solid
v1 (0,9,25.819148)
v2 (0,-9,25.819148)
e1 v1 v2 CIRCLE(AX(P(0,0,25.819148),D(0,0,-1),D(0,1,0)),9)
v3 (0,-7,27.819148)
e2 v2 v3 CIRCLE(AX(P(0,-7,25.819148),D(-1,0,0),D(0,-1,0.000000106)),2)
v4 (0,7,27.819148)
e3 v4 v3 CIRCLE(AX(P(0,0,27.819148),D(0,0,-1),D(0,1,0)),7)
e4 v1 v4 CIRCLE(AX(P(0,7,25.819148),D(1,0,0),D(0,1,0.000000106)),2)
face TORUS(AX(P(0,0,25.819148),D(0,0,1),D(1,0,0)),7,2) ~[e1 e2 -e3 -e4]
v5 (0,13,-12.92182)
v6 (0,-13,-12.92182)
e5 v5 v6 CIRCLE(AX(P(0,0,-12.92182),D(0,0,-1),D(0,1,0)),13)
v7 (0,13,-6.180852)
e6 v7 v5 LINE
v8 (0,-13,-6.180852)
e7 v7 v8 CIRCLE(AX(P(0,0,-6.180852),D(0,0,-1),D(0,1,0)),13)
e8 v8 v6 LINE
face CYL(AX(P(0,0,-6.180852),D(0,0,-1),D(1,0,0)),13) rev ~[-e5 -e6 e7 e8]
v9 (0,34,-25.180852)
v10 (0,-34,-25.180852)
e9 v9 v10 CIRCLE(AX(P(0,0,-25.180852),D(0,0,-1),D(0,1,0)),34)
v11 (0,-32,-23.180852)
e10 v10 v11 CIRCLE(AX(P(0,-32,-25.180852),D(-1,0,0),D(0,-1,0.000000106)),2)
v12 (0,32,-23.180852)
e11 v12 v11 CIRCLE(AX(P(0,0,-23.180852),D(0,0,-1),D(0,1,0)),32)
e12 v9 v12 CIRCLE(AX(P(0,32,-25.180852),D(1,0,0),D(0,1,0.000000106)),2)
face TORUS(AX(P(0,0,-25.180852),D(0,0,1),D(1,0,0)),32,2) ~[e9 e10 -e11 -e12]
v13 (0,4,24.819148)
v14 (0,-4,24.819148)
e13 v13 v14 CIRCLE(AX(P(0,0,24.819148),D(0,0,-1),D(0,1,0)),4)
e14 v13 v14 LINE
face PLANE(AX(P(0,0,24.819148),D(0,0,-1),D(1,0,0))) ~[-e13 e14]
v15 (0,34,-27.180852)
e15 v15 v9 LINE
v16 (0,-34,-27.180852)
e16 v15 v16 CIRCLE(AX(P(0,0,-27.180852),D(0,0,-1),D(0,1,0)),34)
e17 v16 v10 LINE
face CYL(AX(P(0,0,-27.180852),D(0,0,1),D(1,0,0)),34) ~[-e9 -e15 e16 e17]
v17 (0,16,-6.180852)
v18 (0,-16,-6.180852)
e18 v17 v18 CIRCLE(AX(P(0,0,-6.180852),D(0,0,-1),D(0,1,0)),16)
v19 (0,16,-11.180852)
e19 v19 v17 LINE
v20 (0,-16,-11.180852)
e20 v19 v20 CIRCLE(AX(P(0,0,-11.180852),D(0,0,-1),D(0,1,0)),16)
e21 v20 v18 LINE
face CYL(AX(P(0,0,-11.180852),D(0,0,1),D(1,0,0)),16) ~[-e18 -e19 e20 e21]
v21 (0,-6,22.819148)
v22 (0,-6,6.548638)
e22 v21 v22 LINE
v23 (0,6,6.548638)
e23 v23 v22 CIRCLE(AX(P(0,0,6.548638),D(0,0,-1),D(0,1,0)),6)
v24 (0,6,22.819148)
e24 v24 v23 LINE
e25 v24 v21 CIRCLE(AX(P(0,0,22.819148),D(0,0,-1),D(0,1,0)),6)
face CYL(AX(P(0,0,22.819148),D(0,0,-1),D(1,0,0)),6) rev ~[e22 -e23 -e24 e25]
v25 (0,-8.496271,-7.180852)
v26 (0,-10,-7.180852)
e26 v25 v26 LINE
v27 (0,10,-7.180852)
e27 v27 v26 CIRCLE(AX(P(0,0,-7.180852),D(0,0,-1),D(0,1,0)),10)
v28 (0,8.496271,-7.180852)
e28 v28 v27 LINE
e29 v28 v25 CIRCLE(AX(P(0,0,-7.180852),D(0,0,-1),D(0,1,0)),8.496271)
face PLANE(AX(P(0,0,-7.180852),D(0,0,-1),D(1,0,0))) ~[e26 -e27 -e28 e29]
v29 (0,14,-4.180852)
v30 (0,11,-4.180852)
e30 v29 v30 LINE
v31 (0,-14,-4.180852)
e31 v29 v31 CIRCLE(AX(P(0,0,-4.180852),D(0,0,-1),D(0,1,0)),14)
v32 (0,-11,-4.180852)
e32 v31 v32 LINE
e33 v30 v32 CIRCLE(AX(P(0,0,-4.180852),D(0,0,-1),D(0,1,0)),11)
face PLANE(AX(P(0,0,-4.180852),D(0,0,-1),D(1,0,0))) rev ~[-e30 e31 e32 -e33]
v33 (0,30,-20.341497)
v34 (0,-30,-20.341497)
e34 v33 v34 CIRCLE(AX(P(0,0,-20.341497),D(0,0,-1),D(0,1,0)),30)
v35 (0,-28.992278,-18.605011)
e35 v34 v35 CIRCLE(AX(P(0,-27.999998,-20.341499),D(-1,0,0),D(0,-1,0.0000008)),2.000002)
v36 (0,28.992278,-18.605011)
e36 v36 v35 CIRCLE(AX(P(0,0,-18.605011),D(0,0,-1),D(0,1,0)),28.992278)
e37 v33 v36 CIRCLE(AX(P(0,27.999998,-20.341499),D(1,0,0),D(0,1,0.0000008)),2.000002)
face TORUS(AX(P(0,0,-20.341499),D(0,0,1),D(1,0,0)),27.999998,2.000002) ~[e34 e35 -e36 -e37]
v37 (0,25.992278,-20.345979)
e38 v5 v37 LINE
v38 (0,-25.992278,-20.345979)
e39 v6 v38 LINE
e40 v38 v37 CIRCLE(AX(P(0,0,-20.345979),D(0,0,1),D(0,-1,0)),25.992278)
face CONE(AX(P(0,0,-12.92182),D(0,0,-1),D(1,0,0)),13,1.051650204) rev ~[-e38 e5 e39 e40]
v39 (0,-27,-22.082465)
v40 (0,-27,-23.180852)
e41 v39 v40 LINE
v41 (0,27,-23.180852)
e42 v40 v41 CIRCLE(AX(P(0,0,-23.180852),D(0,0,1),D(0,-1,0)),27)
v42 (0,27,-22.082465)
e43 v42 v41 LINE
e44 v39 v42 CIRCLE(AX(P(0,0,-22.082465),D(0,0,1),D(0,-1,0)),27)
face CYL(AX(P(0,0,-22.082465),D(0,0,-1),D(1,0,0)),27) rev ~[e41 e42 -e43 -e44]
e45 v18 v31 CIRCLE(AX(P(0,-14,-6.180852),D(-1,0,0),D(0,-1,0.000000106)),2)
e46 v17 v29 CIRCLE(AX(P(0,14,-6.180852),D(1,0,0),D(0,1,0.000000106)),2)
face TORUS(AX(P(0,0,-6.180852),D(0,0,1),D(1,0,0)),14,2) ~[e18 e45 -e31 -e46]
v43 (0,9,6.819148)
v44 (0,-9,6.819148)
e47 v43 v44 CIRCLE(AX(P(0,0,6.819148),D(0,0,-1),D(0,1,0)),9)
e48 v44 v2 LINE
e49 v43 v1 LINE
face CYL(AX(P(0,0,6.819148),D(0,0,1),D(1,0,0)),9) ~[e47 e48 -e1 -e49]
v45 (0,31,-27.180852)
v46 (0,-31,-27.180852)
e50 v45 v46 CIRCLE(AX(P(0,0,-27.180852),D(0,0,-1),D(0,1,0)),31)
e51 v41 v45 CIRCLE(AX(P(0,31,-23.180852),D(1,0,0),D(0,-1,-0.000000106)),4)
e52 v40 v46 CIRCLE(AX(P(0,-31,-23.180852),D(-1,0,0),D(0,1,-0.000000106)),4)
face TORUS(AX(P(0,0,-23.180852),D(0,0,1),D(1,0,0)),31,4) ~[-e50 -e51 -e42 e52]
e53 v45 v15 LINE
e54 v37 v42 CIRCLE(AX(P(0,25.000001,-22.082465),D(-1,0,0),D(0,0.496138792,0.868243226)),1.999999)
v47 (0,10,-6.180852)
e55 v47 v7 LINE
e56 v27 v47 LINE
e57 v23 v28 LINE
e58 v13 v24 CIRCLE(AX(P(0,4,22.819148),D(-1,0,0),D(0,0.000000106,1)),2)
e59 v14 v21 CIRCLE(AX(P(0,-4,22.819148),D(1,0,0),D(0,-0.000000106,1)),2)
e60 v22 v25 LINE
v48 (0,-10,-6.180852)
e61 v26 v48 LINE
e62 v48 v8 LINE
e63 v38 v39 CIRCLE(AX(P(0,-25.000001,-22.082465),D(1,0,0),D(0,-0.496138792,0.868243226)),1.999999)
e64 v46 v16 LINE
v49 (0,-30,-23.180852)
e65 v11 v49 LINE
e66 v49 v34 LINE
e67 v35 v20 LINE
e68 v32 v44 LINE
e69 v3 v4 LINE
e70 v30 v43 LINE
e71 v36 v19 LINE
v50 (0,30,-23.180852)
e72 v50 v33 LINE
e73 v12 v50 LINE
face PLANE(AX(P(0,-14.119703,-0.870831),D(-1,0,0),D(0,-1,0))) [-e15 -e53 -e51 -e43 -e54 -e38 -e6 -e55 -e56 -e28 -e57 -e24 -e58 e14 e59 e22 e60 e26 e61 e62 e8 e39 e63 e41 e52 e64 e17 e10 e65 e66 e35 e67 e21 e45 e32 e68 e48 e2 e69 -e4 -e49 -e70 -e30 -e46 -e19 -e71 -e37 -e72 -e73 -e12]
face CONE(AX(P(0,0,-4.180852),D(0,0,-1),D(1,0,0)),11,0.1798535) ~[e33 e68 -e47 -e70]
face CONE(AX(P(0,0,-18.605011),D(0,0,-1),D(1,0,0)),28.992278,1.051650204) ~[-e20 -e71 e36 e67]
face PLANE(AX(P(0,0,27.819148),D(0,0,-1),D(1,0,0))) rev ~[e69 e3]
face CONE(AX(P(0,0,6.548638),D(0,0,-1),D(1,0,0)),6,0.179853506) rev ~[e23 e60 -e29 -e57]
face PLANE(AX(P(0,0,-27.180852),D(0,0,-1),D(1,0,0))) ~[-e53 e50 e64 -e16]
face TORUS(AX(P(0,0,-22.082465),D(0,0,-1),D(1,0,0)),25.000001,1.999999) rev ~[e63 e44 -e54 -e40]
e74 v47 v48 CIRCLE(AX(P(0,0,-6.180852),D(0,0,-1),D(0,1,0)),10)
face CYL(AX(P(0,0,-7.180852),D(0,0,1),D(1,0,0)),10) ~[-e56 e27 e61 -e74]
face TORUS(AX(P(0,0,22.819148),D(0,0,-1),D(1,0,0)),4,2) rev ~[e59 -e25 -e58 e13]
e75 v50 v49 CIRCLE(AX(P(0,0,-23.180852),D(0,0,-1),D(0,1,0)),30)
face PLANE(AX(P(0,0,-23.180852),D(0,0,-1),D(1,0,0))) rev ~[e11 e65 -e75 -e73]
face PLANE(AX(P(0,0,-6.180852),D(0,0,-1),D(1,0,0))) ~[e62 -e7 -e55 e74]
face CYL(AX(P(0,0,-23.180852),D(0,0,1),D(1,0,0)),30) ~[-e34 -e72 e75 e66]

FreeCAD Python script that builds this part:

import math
import FreeCAD as App
import Part
import Sketcher

doc = App.newDocument("Part")
body = doc.addObject("PartDesign::Body", "Body")

sketch1 = body.newObject("Sketcher::SketchObject", "Sketch")
sketch1.AttachmentSupport = (doc.getObject("XZ_Plane"), [""])
sketch1.MapMode = "FlatFace"
sketch1.addGeometry(Part.ArcOfCircle(Part.Circle(App.Vector(31, -23.2, 0), App.Vector(0, 0, 1), 4), math.radians(-180), math.radians(-90)), False)
sketch1.addGeometry(Part.LineSegment(App.Vector(31, -27.2, 0), App.Vector(34, -27.2, 0)), False)
sketch1.addGeometry(Part.LineSegment(App.Vector(34, -27.2, 0), App.Vector(34, -25.2, 0)), False)
sketch1.addGeometry(Part.ArcOfCircle(Part.Circle(App.Vector(32, -25.2, 0), App.Vector(0, 0, 1), 2), math.radians(0), math.radians(90)), False)
sketch1.addGeometry(Part.LineSegment(App.Vector(32, -23.2, 0), App.Vector(30, -23.2, 0)), False)
sketch1.addGeometry(Part.LineSegment(App.Vector(30, -23.2, 0), App.Vector(30, -20.3, 0)), False)
sketch1.addGeometry(Part.ArcOfCircle(Part.Circle(App.Vector(28, -20.3, 0), App.Vector(0, 0, 1), 2), math.radians(0), math.radians(60)), False)
sketch1.addGeometry(Part.LineSegment(App.Vector(29, -18.6, 0), App.Vector(16, -11.2, 0)), False)
sketch1.addGeometry(Part.LineSegment(App.Vector(16, -11.2, 0), App.Vector(16, -6.2, 0)), False)
sketch1.addGeometry(Part.ArcOfCircle(Part.Circle(App.Vector(14, -6.2, 0), App.Vector(0, 0, 1), 2), math.radians(0), math.radians(90)), False)
sketch1.addGeometry(Part.LineSegment(App.Vector(14, -4.2, 0), App.Vector(11, -4.2, 0)), False)
sketch1.addGeometry(Part.LineSegment(App.Vector(11, -4.2, 0), App.Vector(9, 6.8, 0)), False)
sketch1.addGeometry(Part.LineSegment(App.Vector(9, 6.8, 0), App.Vector(9, 25.8, 0)), False)
sketch1.addGeometry(Part.ArcOfCircle(Part.Circle(App.Vector(7, 25.8, 0), App.Vector(0, 0, 1), 2), math.radians(0), math.radians(90)), False)
sketch1.addGeometry(Part.LineSegment(App.Vector(7, 27.8, 0), App.Vector(0, 27.8, 0)), False)
sketch1.addGeometry(Part.LineSegment(App.Vector(0, 27.8, 0), App.Vector(0, 24.8, 0)), False)
sketch1.addGeometry(Part.LineSegment(App.Vector(0, 24.8, 0), App.Vector(4, 24.8, 0)), False)
sketch1.addGeometry(Part.ArcOfCircle(Part.Circle(App.Vector(4, 22.8, 0), App.Vector(0, 0, 1), 2), math.radians(0), math.radians(90)), False)
sketch1.addGeometry(Part.LineSegment(App.Vector(6, 22.8, 0), App.Vector(6, 6.5, 0)), False)
sketch1.addGeometry(Part.LineSegment(App.Vector(6, 6.5, 0), App.Vector(8.5, -7.2, 0)), False)
sketch1.addGeometry(Part.LineSegment(App.Vector(8.5, -7.2, 0), App.Vector(10, -7.2, 0)), False)
sketch1.addGeometry(Part.LineSegment(App.Vector(10, -7.2, 0), App.Vector(10, -6.2, 0)), False)
sketch1.addGeometry(Part.LineSegment(App.Vector(10, -6.2, 0), App.Vector(13, -6.2, 0)), False)
sketch1.addGeometry(Part.LineSegment(App.Vector(13, -6.2, 0), App.Vector(13, -12.9, 0)), False)
sketch1.addGeometry(Part.LineSegment(App.Vector(13, -12.9, 0), App.Vector(26, -20.3, 0)), False)
sketch1.addGeometry(Part.ArcOfCircle(Part.Circle(App.Vector(25, -22.1, 0), App.Vector(0, 0, 1), 2), math.radians(0), math.radians(60)), False)
sketch1.addGeometry(Part.LineSegment(App.Vector(27, -22.1, 0), App.Vector(27, -23.2, 0)), False)
sketch1.addConstraint(Sketcher.Constraint("Tangent", 0, 2, 1, 1))
sketch1.addConstraint(Sketcher.Constraint("Coincident", 1, 2, 2, 1))
sketch1.addConstraint(Sketcher.Constraint("Tangent", 2, 2, 3, 1))
sketch1.addConstraint(Sketcher.Constraint("Tangent", 3, 2, 4, 1))
sketch1.addConstraint(Sketcher.Constraint("Coincident", 4, 2, 5, 1))
sketch1.addConstraint(Sketcher.Constraint("Tangent", 5, 2, 6, 1))
sketch1.addConstraint(Sketcher.Constraint("Tangent", 6, 2, 7, 1))
sketch1.addConstraint(Sketcher.Constraint("Coincident", 7, 2, 8, 1))
sketch1.addConstraint(Sketcher.Constraint("Tangent", 8, 2, 9, 1))
sketch1.addConstraint(Sketcher.Constraint("Tangent", 9, 2, 10, 1))
sketch1.addConstraint(Sketcher.Constraint("Coincident", 10, 2, 11, 1))
sketch1.addConstraint(Sketcher.Constraint("Coincident", 11, 2, 12, 1))
sketch1.addConstraint(Sketcher.Constraint("Tangent", 12, 2, 13, 1))
sketch1.addConstraint(Sketcher.Constraint("Tangent", 13, 2, 14, 1))
sketch1.addConstraint(Sketcher.Constraint("Coincident", 14, 2, 15, 1))
sketch1.addConstraint(Sketcher.Constraint("Coincident", 15, 2, 16, 1))
sketch1.addConstraint(Sketcher.Constraint("Tangent", 16, 2, 17, 2))
sketch1.addConstraint(Sketcher.Constraint("Tangent", 17, 1, 18, 1))
sketch1.addConstraint(Sketcher.Constraint("Coincident", 18, 2, 19, 1))
sketch1.addConstraint(Sketcher.Constraint("Coincident", 19, 2, 20, 1))
sketch1.addConstraint(Sketcher.Constraint("Coincident", 20, 2, 21, 1))
sketch1.addConstraint(Sketcher.Constraint("Coincident", 21, 2, 22, 1))
sketch1.addConstraint(Sketcher.Constraint("Coincident", 22, 2, 23, 1))
sketch1.addConstraint(Sketcher.Constraint("Coincident", 23, 2, 24, 1))
sketch1.addConstraint(Sketcher.Constraint("Tangent", 24, 2, 25, 2))
sketch1.addConstraint(Sketcher.Constraint("Tangent", 25, 1, 26, 1))
sketch1.addConstraint(Sketcher.Constraint("Tangent", 26, 2, 0, 1))
sketch1.addConstraint(Sketcher.Constraint("Horizontal", 1))
sketch1.addConstraint(Sketcher.Constraint("Vertical", 2))
sketch1.addConstraint(Sketcher.Constraint("Horizontal", 4))
sketch1.addConstraint(Sketcher.Constraint("Vertical", 5))
sketch1.addConstraint(Sketcher.Constraint("Vertical", 8))
sketch1.addConstraint(Sketcher.Constraint("Horizontal", 10))
sketch1.addConstraint(Sketcher.Constraint("Vertical", 12))
sketch1.addConstraint(Sketcher.Constraint("Horizontal", 14))
sketch1.addConstraint(Sketcher.Constraint("Vertical", 15))
sketch1.addConstraint(Sketcher.Constraint("Horizontal", 16))
sketch1.addConstraint(Sketcher.Constraint("Vertical", 18))
sketch1.addConstraint(Sketcher.Constraint("Horizontal", 20))
sketch1.addConstraint(Sketcher.Constraint("Vertical", 21))
sketch1.addConstraint(Sketcher.Constraint("Horizontal", 22))
sketch1.addConstraint(Sketcher.Constraint("Vertical", 23))
sketch1.addConstraint(Sketcher.Constraint("Vertical", 26))
sketch1.addConstraint(Sketcher.Constraint("Equal", 3, 9))
sketch1.addConstraint(Sketcher.Constraint("Equal", 9, 13))
sketch1.addConstraint(Sketcher.Constraint("Equal", 13, 17))
sketch1.addConstraint(Sketcher.Constraint("Equal", 17, 25))
sketch1.addConstraint(Sketcher.Constraint("PointOnObject", 14, 2, -2))
sketch1.addConstraint(Sketcher.Constraint("Parallel", 11, 19))
sketch1.addConstraint(Sketcher.Constraint("Parallel", 7, 24))
sketch1.addConstraint(Sketcher.Constraint("Horizontal", 0, 3, 3, 2))
sketch1.addConstraint(Sketcher.Constraint("Horizontal", 8, 2, 21, 2))
sketch1.addConstraint(Sketcher.Constraint("Equal", 1, 10))
sketch1.addConstraint(Sketcher.Constraint("Equal", 10, 22))
sketch1.addConstraint(Sketcher.Constraint("Equal", 4, 2))
sketch1.addConstraint(Sketcher.Constraint("Equal", 22, 15))
sketch1.addConstraint(Sketcher.Constraint("Equal", 7, 24))
sketch1.addConstraint(Sketcher.Constraint("Radius", 0, 4.0))
sketch1.addConstraint(Sketcher.Constraint("Radius", 3, 2.0))
sketch1.addConstraint(Sketcher.Constraint("DistanceX", 1, 1, 1, 2, 3.0))
sketch1.addConstraint(Sketcher.Constraint("DistanceX", 14, 2, 14, 1, 7.0))
sketch1.addConstraint(Sketcher.Constraint("DistanceX", 16, 1, 16, 2, 4.0))
sketch1.addConstraint(Sketcher.Constraint("DistanceY", 8, 1, 8, 2, 5.0))
sketch1.addConstraint(Sketcher.Constraint("DistanceY", 12, 1, 12, 2, 19.0))
sketch1.addConstraint(Sketcher.Constraint("DistanceY", 21, 1, 21, 2, 1.0))
sketch1.addConstraint(Sketcher.Constraint("DistanceX", -1, 1, 0, 3, 31.0))
sketch1.addConstraint(Sketcher.Constraint("DistanceX", -1, 1, 9, 3, 14.0))
sketch1.addConstraint(Sketcher.Constraint("DistanceX", -1, 1, 20, 2, 10.0))
sketch1.addConstraint(Sketcher.Constraint("DistanceY", 0, 3, 9, 3, 16.999999))
sketch1.addConstraint(Sketcher.Constraint("DistanceY", 9, 3, 13, 3, 32.0))
sketch1.addConstraint(Sketcher.Constraint("DistanceX", 20, 1, 20, 2, 1.503729))
sketch1.addConstraint(Sketcher.Constraint("DistanceY", 23, 2, 23, 1, 6.740968))
sketch1.addConstraint(Sketcher.Constraint("DistanceY", 6, 3, -1, 1, 20.341499))
sketch1.addConstraint(Sketcher.Constraint("Distance", 7, 14.963871))
revolution = body.newObject("PartDesign::Revolution", "Revolution")
revolution.Profile = sketch1
revolution.ReferenceAxis = (sketch1, ["V_Axis"])
revolution.Angle = 90

sketch2 = body.newObject("Sketcher::SketchObject", "Sketch001")
sketch2.AttachmentSupport = (doc.getObject("XZ_Plane"), [""])
sketch2.MapMode = "FlatFace"
sketch2.addGeometry(Part.ArcOfCircle(Part.Circle(App.Vector(31, -23.2, 0), App.Vector(0, 0, 1), 4), math.radians(-180), math.radians(-90)), False)
sketch2.addGeometry(Part.LineSegment(App.Vector(31, -27.2, 0), App.Vector(34, -27.2, 0)), False)
sketch2.addGeometry(Part.LineSegment(App.Vector(34, -27.2, 0), App.Vector(34, -25.2, 0)), False)
sketch2.addGeometry(Part.ArcOfCircle(Part.Circle(App.Vector(32, -25.2, 0), App.Vector(0, 0, 1), 2), math.radians(0), math.radians(90)), False)
sketch2.addGeometry(Part.LineSegment(App.Vector(32, -23.2, 0), App.Vector(30, -23.2, 0)), False)
sketch2.addGeometry(Part.LineSegment(App.Vector(30, -23.2, 0), App.Vector(30, -20.3, 0)), False)
sketch2.addGeometry(Part.ArcOfCircle(Part.Circle(App.Vector(28, -20.3, 0), App.Vector(0, 0, 1), 2), math.radians(0), math.radians(60)), False)
sketch2.addGeometry(Part.LineSegment(App.Vector(29, -18.6, 0), App.Vector(16, -11.2, 0)), False)
sketch2.addGeometry(Part.LineSegment(App.Vector(16, -11.2, 0), App.Vector(16, -6.2, 0)), False)
sketch2.addGeometry(Part.ArcOfCircle(Part.Circle(App.Vector(14, -6.2, 0), App.Vector(0, 0, 1), 2), math.radians(0), math.radians(90)), False)
sketch2.addGeometry(Part.LineSegment(App.Vector(14, -4.2, 0), App.Vector(11, -4.2, 0)), False)
sketch2.addGeometry(Part.LineSegment(App.Vector(11, -4.2, 0), App.Vector(9, 6.8, 0)), False)
sketch2.addGeometry(Part.LineSegment(App.Vector(9, 6.8, 0), App.Vector(9, 25.8, 0)), False)
sketch2.addGeometry(Part.ArcOfCircle(Part.Circle(App.Vector(7, 25.8, 0), App.Vector(0, 0, 1), 2), math.radians(0), math.radians(90)), False)
sketch2.addGeometry(Part.LineSegment(App.Vector(7, 27.8, 0), App.Vector(0, 27.8, 0)), False)
sketch2.addGeometry(Part.LineSegment(App.Vector(0, 27.8, 0), App.Vector(0, 24.8, 0)), False)
sketch2.addGeometry(Part.LineSegment(App.Vector(0, 24.8, 0), App.Vector(4, 24.8, 0)), False)
sketch2.addGeometry(Part.ArcOfCircle(Part.Circle(App.Vector(4, 22.8, 0), App.Vector(0, 0, 1), 2), math.radians(0), math.radians(90)), False)
sketch2.addGeometry(Part.LineSegment(App.Vector(6, 22.8, 0), App.Vector(6, 6.5, 0)), False)
sketch2.addGeometry(Part.LineSegment(App.Vector(6, 6.5, 0), App.Vector(8.5, -7.2, 0)), False)
sketch2.addGeometry(Part.LineSegment(App.Vector(8.5, -7.2, 0), App.Vector(10, -7.2, 0)), False)
sketch2.addGeometry(Part.LineSegment(App.Vector(10, -7.2, 0), App.Vector(10, -6.2, 0)), False)
sketch2.addGeometry(Part.LineSegment(App.Vector(10, -6.2, 0), App.Vector(13, -6.2, 0)), False)
sketch2.addGeometry(Part.LineSegment(App.Vector(13, -6.2, 0), App.Vector(13, -12.9, 0)), False)
sketch2.addGeometry(Part.LineSegment(App.Vector(13, -12.9, 0), App.Vector(26, -20.3, 0)), False)
sketch2.addGeometry(Part.ArcOfCircle(Part.Circle(App.Vector(25, -22.1, 0), App.Vector(0, 0, 1), 2), math.radians(0), math.radians(60)), False)
sketch2.addGeometry(Part.LineSegment(App.Vector(27, -22.1, 0), App.Vector(27, -23.2, 0)), False)
sketch2.addConstraint(Sketcher.Constraint("Tangent", 0, 2, 1, 1))
sketch2.addConstraint(Sketcher.Constraint("Coincident", 1, 2, 2, 1))
sketch2.addConstraint(Sketcher.Constraint("Tangent", 2, 2, 3, 1))
sketch2.addConstraint(Sketcher.Constraint("Tangent", 3, 2, 4, 1))
sketch2.addConstraint(Sketcher.Constraint("Coincident", 4, 2, 5, 1))
sketch2.addConstraint(Sketcher.Constraint("Tangent", 5, 2, 6, 1))
sketch2.addConstraint(Sketcher.Constraint("Tangent", 6, 2, 7, 1))
sketch2.addConstraint(Sketcher.Constraint("Coincident", 7, 2, 8, 1))
sketch2.addConstraint(Sketcher.Constraint("Tangent", 8, 2, 9, 1))
sketch2.addConstraint(Sketcher.Constraint("Tangent", 9, 2, 10, 1))
sketch2.addConstraint(Sketcher.Constraint("Coincident", 10, 2, 11, 1))
sketch2.addConstraint(Sketcher.Constraint("Coincident", 11, 2, 12, 1))
sketch2.addConstraint(Sketcher.Constraint("Tangent", 12, 2, 13, 1))
sketch2.addConstraint(Sketcher.Constraint("Tangent", 13, 2, 14, 1))
sketch2.addConstraint(Sketcher.Constraint("Coincident", 14, 2, 15, 1))
sketch2.addConstraint(Sketcher.Constraint("Coincident", 15, 2, 16, 1))
sketch2.addConstraint(Sketcher.Constraint("Tangent", 16, 2, 17, 2))
sketch2.addConstraint(Sketcher.Constraint("Tangent", 17, 1, 18, 1))
sketch2.addConstraint(Sketcher.Constraint("Coincident", 18, 2, 19, 1))
sketch2.addConstraint(Sketcher.Constraint("Coincident", 19, 2, 20, 1))
sketch2.addConstraint(Sketcher.Constraint("Coincident", 20, 2, 21, 1))
sketch2.addConstraint(Sketcher.Constraint("Coincident", 21, 2, 22, 1))
sketch2.addConstraint(Sketcher.Constraint("Coincident", 22, 2, 23, 1))
sketch2.addConstraint(Sketcher.Constraint("Coincident", 23, 2, 24, 1))
sketch2.addConstraint(Sketcher.Constraint("Tangent", 24, 2, 25, 2))
sketch2.addConstraint(Sketcher.Constraint("Tangent", 25, 1, 26, 1))
sketch2.addConstraint(Sketcher.Constraint("Tangent", 26, 2, 0, 1))
sketch2.addConstraint(Sketcher.Constraint("Horizontal", 1))
sketch2.addConstraint(Sketcher.Constraint("Vertical", 2))
sketch2.addConstraint(Sketcher.Constraint("Horizontal", 4))
sketch2.addConstraint(Sketcher.Constraint("Vertical", 5))
sketch2.addConstraint(Sketcher.Constraint("Vertical", 8))
sketch2.addConstraint(Sketcher.Constraint("Horizontal", 10))
sketch2.addConstraint(Sketcher.Constraint("Vertical", 12))
sketch2.addConstraint(Sketcher.Constraint("Horizontal", 14))
sketch2.addConstraint(Sketcher.Constraint("Vertical", 15))
sketch2.addConstraint(Sketcher.Constraint("Horizontal", 16))
sketch2.addConstraint(Sketcher.Constraint("Vertical", 18))
sketch2.addConstraint(Sketcher.Constraint("Horizontal", 20))
sketch2.addConstraint(Sketcher.Constraint("Vertical", 21))
sketch2.addConstraint(Sketcher.Constraint("Horizontal", 22))
sketch2.addConstraint(Sketcher.Constraint("Vertical", 23))
sketch2.addConstraint(Sketcher.Constraint("Vertical", 26))
sketch2.addConstraint(Sketcher.Constraint("Equal", 3, 9))
sketch2.addConstraint(Sketcher.Constraint("Equal", 9, 13))
sketch2.addConstraint(Sketcher.Constraint("Equal", 13, 17))
sketch2.addConstraint(Sketcher.Constraint("Equal", 17, 25))
sketch2.addConstraint(Sketcher.Constraint("PointOnObject", 14, 2, -2))
sketch2.addConstraint(Sketcher.Constraint("Parallel", 11, 19))
sketch2.addConstraint(Sketcher.Constraint("Parallel", 7, 24))
sketch2.addConstraint(Sketcher.Constraint("Horizontal", 0, 3, 3, 2))
sketch2.addConstraint(Sketcher.Constraint("Horizontal", 8, 2, 21, 2))
sketch2.addConstraint(Sketcher.Constraint("Equal", 1, 10))
sketch2.addConstraint(Sketcher.Constraint("Equal", 10, 22))
sketch2.addConstraint(Sketcher.Constraint("Equal", 4, 2))
sketch2.addConstraint(Sketcher.Constraint("Equal", 22, 15))
sketch2.addConstraint(Sketcher.Constraint("Equal", 7, 24))
sketch2.addConstraint(Sketcher.Constraint("Radius", 0, 4.0))
sketch2.addConstraint(Sketcher.Constraint("Radius", 3, 2.0))
sketch2.addConstraint(Sketcher.Constraint("DistanceX", 1, 1, 1, 2, 3.0))
sketch2.addConstraint(Sketcher.Constraint("DistanceX", 14, 2, 14, 1, 7.0))
sketch2.addConstraint(Sketcher.Constraint("DistanceX", 16, 1, 16, 2, 4.0))
sketch2.addConstraint(Sketcher.Constraint("DistanceY", 8, 1, 8, 2, 5.0))
sketch2.addConstraint(Sketcher.Constraint("DistanceY", 12, 1, 12, 2, 19.0))
sketch2.addConstraint(Sketcher.Constraint("DistanceY", 21, 1, 21, 2, 1.0))
sketch2.addConstraint(Sketcher.Constraint("DistanceX", -1, 1, 0, 3, 31.0))
sketch2.addConstraint(Sketcher.Constraint("DistanceX", -1, 1, 9, 3, 14.0))
sketch2.addConstraint(Sketcher.Constraint("DistanceX", -1, 1, 20, 2, 10.0))
sketch2.addConstraint(Sketcher.Constraint("DistanceY", 0, 3, 9, 3, 16.999999))
sketch2.addConstraint(Sketcher.Constraint("DistanceY", 9, 3, 13, 3, 32.0))
sketch2.addConstraint(Sketcher.Constraint("DistanceX", 20, 1, 20, 2, 1.503729))
sketch2.addConstraint(Sketcher.Constraint("DistanceY", 23, 2, 23, 1, 6.740968))
sketch2.addConstraint(Sketcher.Constraint("DistanceY", 6, 3, -1, 1, 20.341499))
sketch2.addConstraint(Sketcher.Constraint("Distance", 7, 14.963871))
revolution2 = body.newObject("PartDesign::Revolution", "Revolution001")
revolution2.Profile = sketch2
revolution2.ReferenceAxis = (sketch2, ["V_Axis"])
revolution2.Angle = 90
revolution2.Reversed = True

doc.recompute()
